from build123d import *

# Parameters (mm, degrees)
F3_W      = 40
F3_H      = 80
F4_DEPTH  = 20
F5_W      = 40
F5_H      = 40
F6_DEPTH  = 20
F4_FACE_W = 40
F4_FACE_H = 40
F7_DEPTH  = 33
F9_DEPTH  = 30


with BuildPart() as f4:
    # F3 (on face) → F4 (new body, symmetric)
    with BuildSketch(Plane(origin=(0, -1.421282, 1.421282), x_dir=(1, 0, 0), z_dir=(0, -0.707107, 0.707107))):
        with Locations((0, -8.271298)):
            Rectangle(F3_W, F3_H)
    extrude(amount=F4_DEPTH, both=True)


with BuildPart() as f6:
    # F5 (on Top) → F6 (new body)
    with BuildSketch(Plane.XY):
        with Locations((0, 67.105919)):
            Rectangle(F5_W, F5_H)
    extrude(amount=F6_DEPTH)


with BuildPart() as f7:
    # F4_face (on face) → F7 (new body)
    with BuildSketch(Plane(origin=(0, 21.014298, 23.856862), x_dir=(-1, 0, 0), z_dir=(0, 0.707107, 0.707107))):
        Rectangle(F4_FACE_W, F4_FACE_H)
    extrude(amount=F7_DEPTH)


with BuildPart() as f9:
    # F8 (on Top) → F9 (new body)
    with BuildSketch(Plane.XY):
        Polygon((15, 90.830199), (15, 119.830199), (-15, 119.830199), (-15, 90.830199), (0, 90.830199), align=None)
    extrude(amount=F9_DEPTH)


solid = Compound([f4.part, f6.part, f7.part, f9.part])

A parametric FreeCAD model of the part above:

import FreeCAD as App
import Part
import Sketcher
from FreeCAD import Vector


def add_polygon(sketch, points):
    """Adds a closed chain of lines whose ends are joined by coincident constraints."""
    first, n = sketch.GeometryCount, len(points)
    for a, b in zip(points, points[1:] + points[:1]):
        sketch.addGeometry(Part.LineSegment(App.Vector(*a, 0), App.Vector(*b, 0)), False)
    for i in range(n):
        sketch.addConstraint(Sketcher.Constraint("Coincident", first + i, 2, first + (i + 1) % n, 1))

doc = App.newDocument("Part")
params = doc.addObject("Spreadsheet::Sheet", "Params")
for row, (alias, value) in enumerate([
    ("sketch1_width", "40 mm"),
    ("sketch1_height", "80 mm"),
    ("pad1_length", "40 mm"),
    ("sketch2_width", "40 mm"),
    ("pad2_length", "20 mm"),
    ("sketch3_width", "40 mm"),
    ("pad3_length", "33 mm"),
    ("sketch4_width", "30 mm"),
    ("sketch4_height", "29 mm"),
    ("pad4_length", "30 mm"),
], start=1):
    params.set(f"A{row}", alias)
    params.set(f"B{row}", "=" + value)
    params.setAlias(f"B{row}", alias)

body = doc.addObject("PartDesign::Body", "Body")

sketch1 = body.newObject("Sketcher::SketchObject", "Sketch")
sketch1.Placement = App.Placement(Vector(0, -1.421282, 1.421282), App.Rotation(Vector(1, 0, 0), Vector(0, 0.707106781, 0.707106781), Vector(0, -0.707106781, 0.707106781), "ZXY"))
add_polygon(sketch1, [(-20, 31.728702), (-20, -48.271298), (20, -48.271298), (20, 31.728702)])
sketch1.addConstraint([
    Sketcher.Constraint("Vertical", 0),
    Sketcher.Constraint("Horizontal", 1),
    Sketcher.Constraint("Vertical", 2),
    Sketcher.Constraint("Horizontal", 3),
    Sketcher.Constraint("DistanceX", 1, 1, 1, 2, 40.0),
    Sketcher.Constraint("DistanceY", 0, 2, 0, 1, 80.0),
    Sketcher.Constraint("DistanceX", 0, 2, -1, 1, 20.0),
    Sketcher.Constraint("DistanceY", -1, 1, 2, 2, 31.728702),
])
sketch1.setExpression("Constraints[8]", "Params.sketch1_width")
sketch1.setExpression("Constraints[9]", "Params.sketch1_height")
pad1 = body.newObject("PartDesign::Pad", "Pad")
pad1.Profile = sketch1
pad1.setExpression("Length", "Params.pad1_length")
pad1.Midplane = True
body2 = doc.addObject("PartDesign::Body", "Body001")

sketch2 = body2.newObject("Sketcher::SketchObject", "Sketch001")
sketch2.AttachmentSupport = (doc.getObject("XY_Plane001"), [""])
sketch2.MapMode = "FlatFace"
add_polygon(sketch2, [(-20, 87.105919), (-20, 47.105919), (20, 47.105919), (20, 87.105919)])
sketch2.addConstraint([
    Sketcher.Constraint("Vertical", 0),
    Sketcher.Constraint("Horizontal", 1),
    Sketcher.Constraint("Vertical", 2),
    Sketcher.Constraint("Horizontal", 3),
    Sketcher.Constraint("Equal", 3, 0),
    Sketcher.Constraint("DistanceX", 1, 1, 1, 2, 40.0),
    Sketcher.Constraint("DistanceX", 0, 2, -1, 1, 20.0),
    Sketcher.Constraint("DistanceY", -1, 1, 0, 2, 47.105919),
])
sketch2.setExpression("Constraints[9]", "Params.sketch2_width")
pad2 = body2.newObject("PartDesign::Pad", "Pad001")
pad2.Profile = sketch2
pad2.setExpression("Length", "Params.pad2_length")
body3 = doc.addObject("PartDesign::Body", "Body002")

sketch3 = body3.newObject("Sketcher::SketchObject", "Sketch002")
sketch3.Placement = App.Placement(Vector(0, 21.014298, 23.856862), App.Rotation(Vector(-1, 0, 0), Vector(0, -0.707106781, 0.707106781), Vector(0, 0.707106781, 0.707106781), "ZXY"))
add_polygon(sketch3, [(-20, 20), (-20, -20), (20, -20), (20, 20)])
sketch3.addConstraint([
    Sketcher.Constraint("Vertical", 0),
    Sketcher.Constraint("Horizontal", 1),
    Sketcher.Constraint("Vertical", 2),
    Sketcher.Constraint("Horizontal", 3),
    Sketcher.Constraint("Symmetric", 0, 2, 2, 2, -1, 1),
    Sketcher.Constraint("Equal", 3, 0),
    Sketcher.Constraint("DistanceX", 1, 1, 1, 2, 40.0),
])
sketch3.setExpression("Constraints[10]", "Params.sketch3_width")
pad3 = body3.newObject("PartDesign::Pad", "Pad002")
pad3.Profile = sketch3
pad3.setExpression("Length", "Params.pad3_length")
body4 = doc.addObject("PartDesign::Body", "Body003")

sketch4 = body4.newObject("Sketcher::SketchObject", "Sketch003")
sketch4.AttachmentSupport = (doc.getObject("XY_Plane003"), [""])
sketch4.MapMode = "FlatFace"
add_polygon(sketch4, [(15, 90.830199), (15, 119.830199), (-15, 119.830199), (-15, 90.830199)])
sketch4.addConstraint([
    Sketcher.Constraint("Vertical", 0),
    Sketcher.Constraint("Horizontal", 1),
    Sketcher.Constraint("Vertical", 2),
    Sketcher.Constraint("Horizontal", 3),
    Sketcher.Constraint("DistanceX", 1, 2, 1, 1, 30.0),
    Sketcher.Constraint("DistanceY", 0, 1, 0, 2, 29.0),
    Sketcher.Constraint("DistanceX", -1, 1, 0, 2, 15.0),
    Sketcher.Constraint("DistanceY", -1, 1, 0, 2, 119.830199),
])
sketch4.setExpression("Constraints[8]", "Params.sketch4_width")
sketch4.setExpression("Constraints[9]", "Params.sketch4_height")
pad4 = body4.newObject("PartDesign::Pad", "Pad003")
pad4.Profile = sketch4
pad4.setExpression("Length", "Params.pad4_length")

doc.recompute()
